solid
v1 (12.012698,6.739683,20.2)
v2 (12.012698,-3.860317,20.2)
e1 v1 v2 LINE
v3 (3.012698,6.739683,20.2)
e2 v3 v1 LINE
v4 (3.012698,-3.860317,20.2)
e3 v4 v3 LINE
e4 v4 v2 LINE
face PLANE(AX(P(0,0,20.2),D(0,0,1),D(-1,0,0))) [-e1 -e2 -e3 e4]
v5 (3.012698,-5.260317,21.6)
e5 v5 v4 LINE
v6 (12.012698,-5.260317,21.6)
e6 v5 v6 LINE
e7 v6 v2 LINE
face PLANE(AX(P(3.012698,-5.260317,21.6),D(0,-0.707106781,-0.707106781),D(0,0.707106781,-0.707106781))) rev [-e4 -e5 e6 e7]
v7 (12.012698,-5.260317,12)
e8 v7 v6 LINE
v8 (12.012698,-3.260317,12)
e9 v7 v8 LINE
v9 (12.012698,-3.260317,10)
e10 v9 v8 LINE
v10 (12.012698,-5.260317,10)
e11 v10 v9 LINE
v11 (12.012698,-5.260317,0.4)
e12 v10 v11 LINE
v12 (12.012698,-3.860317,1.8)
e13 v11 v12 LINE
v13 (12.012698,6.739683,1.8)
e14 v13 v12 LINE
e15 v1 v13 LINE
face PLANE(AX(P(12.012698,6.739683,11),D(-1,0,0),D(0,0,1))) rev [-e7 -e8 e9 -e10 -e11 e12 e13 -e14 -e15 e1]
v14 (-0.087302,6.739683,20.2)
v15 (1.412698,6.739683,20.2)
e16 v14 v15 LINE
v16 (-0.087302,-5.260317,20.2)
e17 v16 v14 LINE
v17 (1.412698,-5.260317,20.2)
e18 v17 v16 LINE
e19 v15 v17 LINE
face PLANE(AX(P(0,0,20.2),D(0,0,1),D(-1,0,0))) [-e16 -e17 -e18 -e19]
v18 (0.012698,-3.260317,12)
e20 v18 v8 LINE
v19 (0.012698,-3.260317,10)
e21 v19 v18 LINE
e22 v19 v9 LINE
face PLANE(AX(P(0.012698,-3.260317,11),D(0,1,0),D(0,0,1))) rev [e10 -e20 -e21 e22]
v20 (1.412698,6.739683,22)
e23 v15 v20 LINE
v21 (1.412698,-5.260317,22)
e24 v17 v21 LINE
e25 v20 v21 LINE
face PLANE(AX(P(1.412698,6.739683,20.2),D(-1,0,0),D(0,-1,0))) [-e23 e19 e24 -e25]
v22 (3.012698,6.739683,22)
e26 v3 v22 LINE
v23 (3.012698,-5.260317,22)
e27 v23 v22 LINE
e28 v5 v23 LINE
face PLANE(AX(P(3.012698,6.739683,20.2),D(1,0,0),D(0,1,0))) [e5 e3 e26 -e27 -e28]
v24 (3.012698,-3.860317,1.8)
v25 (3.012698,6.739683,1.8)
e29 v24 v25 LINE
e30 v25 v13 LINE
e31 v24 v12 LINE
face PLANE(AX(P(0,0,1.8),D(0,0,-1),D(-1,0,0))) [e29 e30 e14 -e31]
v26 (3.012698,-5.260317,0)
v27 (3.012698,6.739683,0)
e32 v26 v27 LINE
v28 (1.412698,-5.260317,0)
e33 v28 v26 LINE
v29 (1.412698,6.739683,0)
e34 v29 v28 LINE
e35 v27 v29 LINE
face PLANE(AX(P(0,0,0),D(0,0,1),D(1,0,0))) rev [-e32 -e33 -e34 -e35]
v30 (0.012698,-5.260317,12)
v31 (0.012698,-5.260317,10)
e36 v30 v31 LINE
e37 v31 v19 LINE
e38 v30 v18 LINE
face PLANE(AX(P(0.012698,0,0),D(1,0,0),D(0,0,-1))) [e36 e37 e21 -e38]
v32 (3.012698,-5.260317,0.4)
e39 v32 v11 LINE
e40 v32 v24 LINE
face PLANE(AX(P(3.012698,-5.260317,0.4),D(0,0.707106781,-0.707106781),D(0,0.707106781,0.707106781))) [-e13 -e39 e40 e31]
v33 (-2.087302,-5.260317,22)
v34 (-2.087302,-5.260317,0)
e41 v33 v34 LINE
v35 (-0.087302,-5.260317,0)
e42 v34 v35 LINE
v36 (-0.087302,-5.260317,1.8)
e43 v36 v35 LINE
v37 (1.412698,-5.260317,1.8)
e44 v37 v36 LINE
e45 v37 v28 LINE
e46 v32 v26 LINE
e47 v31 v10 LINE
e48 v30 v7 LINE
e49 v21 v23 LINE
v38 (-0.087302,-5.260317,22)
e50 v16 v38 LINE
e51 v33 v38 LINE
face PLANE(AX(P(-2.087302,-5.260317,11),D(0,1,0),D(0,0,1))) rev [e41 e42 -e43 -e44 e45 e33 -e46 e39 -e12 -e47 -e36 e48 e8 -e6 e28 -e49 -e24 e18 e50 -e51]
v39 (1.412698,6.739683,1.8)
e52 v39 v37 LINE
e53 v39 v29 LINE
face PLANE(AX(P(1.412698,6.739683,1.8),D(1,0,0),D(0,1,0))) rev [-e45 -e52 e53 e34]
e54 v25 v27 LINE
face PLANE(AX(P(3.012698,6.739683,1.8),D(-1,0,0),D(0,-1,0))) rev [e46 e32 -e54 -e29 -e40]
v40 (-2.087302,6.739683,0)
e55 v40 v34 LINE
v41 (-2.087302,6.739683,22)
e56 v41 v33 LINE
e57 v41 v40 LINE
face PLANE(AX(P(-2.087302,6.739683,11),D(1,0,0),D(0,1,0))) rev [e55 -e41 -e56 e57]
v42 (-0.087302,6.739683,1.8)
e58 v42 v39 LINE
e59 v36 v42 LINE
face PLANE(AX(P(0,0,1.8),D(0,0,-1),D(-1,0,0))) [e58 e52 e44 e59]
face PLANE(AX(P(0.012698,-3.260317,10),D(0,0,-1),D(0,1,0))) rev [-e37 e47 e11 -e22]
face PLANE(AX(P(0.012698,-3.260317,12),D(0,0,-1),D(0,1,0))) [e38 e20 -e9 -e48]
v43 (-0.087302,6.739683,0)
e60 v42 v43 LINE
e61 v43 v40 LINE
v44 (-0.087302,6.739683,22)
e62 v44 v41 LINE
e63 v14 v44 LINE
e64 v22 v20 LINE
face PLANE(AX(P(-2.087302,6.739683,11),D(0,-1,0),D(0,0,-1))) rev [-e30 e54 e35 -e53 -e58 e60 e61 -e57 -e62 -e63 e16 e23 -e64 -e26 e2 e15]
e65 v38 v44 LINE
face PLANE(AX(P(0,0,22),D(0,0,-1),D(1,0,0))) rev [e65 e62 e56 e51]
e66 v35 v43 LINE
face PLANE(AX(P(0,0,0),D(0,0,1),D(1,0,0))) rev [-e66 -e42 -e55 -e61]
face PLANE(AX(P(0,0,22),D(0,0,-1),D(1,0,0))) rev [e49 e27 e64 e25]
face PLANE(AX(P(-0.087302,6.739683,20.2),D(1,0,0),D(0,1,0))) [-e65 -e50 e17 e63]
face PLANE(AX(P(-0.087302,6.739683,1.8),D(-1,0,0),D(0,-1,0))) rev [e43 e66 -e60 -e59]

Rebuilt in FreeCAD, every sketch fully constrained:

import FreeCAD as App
import Part
import Sketcher
from FreeCAD import Vector


def add_polygon(sketch, points):
    """Adds a closed chain of lines whose ends are joined by coincident constraints."""
    first, n = sketch.GeometryCount, len(points)
    for a, b in zip(points, points[1:] + points[:1]):
        sketch.addGeometry(Part.LineSegment(App.Vector(*a, 0), App.Vector(*b, 0)), False)
    for i in range(n):
        sketch.addConstraint(Sketcher.Constraint("Coincident", first + i, 2, first + (i + 1) % n, 1))

doc = App.newDocument("Part")
body = doc.addObject("PartDesign::Body", "Body")

sketch1 = body.newObject("Sketcher::SketchObject", "Sketch")
sketch1.AttachmentSupport = (doc.getObject("XY_Plane"), [""])
sketch1.MapMode = "FlatFace"
add_polygon(sketch1, [(-2.087302, 6.739683), (-2.087302, -5.260317), (12.012698, -5.260317), (12.012698, 6.739683)])
sketch1.addConstraint([
    Sketcher.Constraint("Vertical", 0),
    Sketcher.Constraint("Horizontal", 1),
    Sketcher.Constraint("Vertical", 2),
    Sketcher.Constraint("Horizontal", 3),
    Sketcher.Constraint("DistanceY", 0, 2, 0, 1, 12.0),
    Sketcher.Constraint("DistanceX", 1, 1, 1, 2, 14.1),
    Sketcher.Constraint("DistanceX", 0, 2, -1, 1, 2.087302),
    Sketcher.Constraint("DistanceY", 0, 2, -1, 1, 5.260317),
])
pad1 = body.newObject("PartDesign::Pad", "Pad")
pad1.Profile = sketch1
pad1.Length = 11

sketch2 = body.newObject("Sketcher::SketchObject", "Sketch001")
sketch2.AttachmentSupport = (doc.getObject("XY_Plane"), [""])
sketch2.MapMode = "FlatFace"
add_polygon(sketch2, [(1.412698, 6.739683), (1.412698, -5.260317), (-0.087302, -5.260317), (-0.087302, 6.739683)])
sketch2.addConstraint([
    Sketcher.Constraint("Vertical", 0),
    Sketcher.Constraint("Horizontal", 1),
    Sketcher.Constraint("Vertical", 2),
    Sketcher.Constraint("Horizontal", 3),
    Sketcher.Constraint("DistanceY", 0, 2, 0, 1, 12.0),
    Sketcher.Constraint("DistanceX", 1, 2, 1, 1, 1.5),
    Sketcher.Constraint("DistanceX", -1, 1, 0, 2, 1.412698),
    Sketcher.Constraint("DistanceY", 0, 2, -1, 1, 5.260317),
])
pocket1 = body.newObject("PartDesign::Pocket", "Pocket")
pocket1.Profile = sketch2
pocket1.Length = 1.8
pocket1.Reversed = True

sketch3 = body.newObject("Sketcher::SketchObject", "Sketch002")
sketch3.AttachmentSupport = (doc.getObject("XY_Plane"), [""])
sketch3.MapMode = "FlatFace"
add_polygon(sketch3, [(12.012698, 6.739683), (12.012698, -5.260317), (3.012698, -5.260317), (3.012698, 6.739683)])
sketch3.addConstraint([
    Sketcher.Constraint("Vertical", 0),
    Sketcher.Constraint("Horizontal", 1),
    Sketcher.Constraint("Vertical", 2),
    Sketcher.Constraint("Horizontal", 3),
    Sketcher.Constraint("DistanceX", 1, 2, 1, 1, 9.0),
    Sketcher.Constraint("DistanceY", 0, 2, 0, 1, 12.0),
    Sketcher.Constraint("DistanceX", -1, 1, 0, 2, 12.012698),
    Sketcher.Constraint("DistanceY", 0, 2, -1, 1, 5.260317),
])
pocket2 = body.newObject("PartDesign::Pocket", "Pocket001")
pocket2.Profile = sketch3
pocket2.Length = 1.8
pocket2.Reversed = True

sketch4 = body.newObject("Sketcher::SketchObject", "Sketch003")
sketch4.AttachmentSupport = (doc.getObject("YZ_Plane"), [""])
sketch4.MapMode = "FlatFace"
sketch4.AttachmentOffset = App.Placement(Vector(0, 0, 12.012698), App.Rotation())
add_polygon(sketch4, [(-5.260317, 1.8), (-5.260317, 0.4), (-3.860317, 1.8)])
sketch4.addConstraint([
    Sketcher.Constraint("Vertical", 0),
    Sketcher.Constraint("Horizontal", 2),
    Sketcher.Constraint("Equal", 2, 0),
    Sketcher.Constraint("DistanceX", 2, 2, 2, 1, 1.4),
    Sketcher.Constraint("DistanceY", -1, 1, 0, 2, 0.4),
    Sketcher.Constraint("DistanceX", 0, 2, -1, 1, 5.260317),
])
pad2 = body.newObject("PartDesign::Pad", "Pad001")
pad2.Profile = sketch4
pad2.Length = 9
pad2.Reversed = True

sketch5 = body.newObject("Sketcher::SketchObject", "Sketch004")
sketch5.AttachmentSupport = (doc.getObject("YZ_Plane"), [""])
sketch5.MapMode = "FlatFace"
sketch5.AttachmentOffset = App.Placement(Vector(0, 0, 12.012698), App.Rotation())
add_polygon(sketch5, [(-3.260317, 11), (-5.260317, 11), (-5.260317, 10), (-3.260317, 10)])
sketch5.addConstraint([
    Sketcher.Constraint("Horizontal", 0),
    Sketcher.Constraint("Vertical", 1),
    Sketcher.Constraint("Horizontal", 2),
    Sketcher.Constraint("Vertical", 3),
    Sketcher.Constraint("DistanceX", 0, 2, 0, 1, 2.0),
    Sketcher.Constraint("DistanceY", 1, 2, 1, 1, 1.0),
    Sketcher.Constraint("DistanceY", -1, 1, 0, 2, 11.0),
    Sketcher.Constraint("DistanceX", 0, 2, -1, 1, 5.260317),
])
pocket3 = body.newObject("PartDesign::Pocket", "Pocket002")
pocket3.Profile = sketch5
pocket3.Length = 12
doc.recompute()

datumplane = body.newObject("PartDesign::Plane", "DatumPlane")
datumplane.AttachmentSupport = (doc.getObject("XY_Plane"), [""])
datumplane.MapMode = "FlatFace"
datumplane.AttachmentOffset = App.Placement(Vector(0, 0, 11), App.Rotation())
mirrored = body.newObject("PartDesign::Mirrored", "Mirrored")
mirrored.Originals = [pad1, pocket1, pocket2, pad2, pocket3]
mirrored.MirrorPlane = (datumplane, [""])
body.Tip = mirrored

doc.recompute()
